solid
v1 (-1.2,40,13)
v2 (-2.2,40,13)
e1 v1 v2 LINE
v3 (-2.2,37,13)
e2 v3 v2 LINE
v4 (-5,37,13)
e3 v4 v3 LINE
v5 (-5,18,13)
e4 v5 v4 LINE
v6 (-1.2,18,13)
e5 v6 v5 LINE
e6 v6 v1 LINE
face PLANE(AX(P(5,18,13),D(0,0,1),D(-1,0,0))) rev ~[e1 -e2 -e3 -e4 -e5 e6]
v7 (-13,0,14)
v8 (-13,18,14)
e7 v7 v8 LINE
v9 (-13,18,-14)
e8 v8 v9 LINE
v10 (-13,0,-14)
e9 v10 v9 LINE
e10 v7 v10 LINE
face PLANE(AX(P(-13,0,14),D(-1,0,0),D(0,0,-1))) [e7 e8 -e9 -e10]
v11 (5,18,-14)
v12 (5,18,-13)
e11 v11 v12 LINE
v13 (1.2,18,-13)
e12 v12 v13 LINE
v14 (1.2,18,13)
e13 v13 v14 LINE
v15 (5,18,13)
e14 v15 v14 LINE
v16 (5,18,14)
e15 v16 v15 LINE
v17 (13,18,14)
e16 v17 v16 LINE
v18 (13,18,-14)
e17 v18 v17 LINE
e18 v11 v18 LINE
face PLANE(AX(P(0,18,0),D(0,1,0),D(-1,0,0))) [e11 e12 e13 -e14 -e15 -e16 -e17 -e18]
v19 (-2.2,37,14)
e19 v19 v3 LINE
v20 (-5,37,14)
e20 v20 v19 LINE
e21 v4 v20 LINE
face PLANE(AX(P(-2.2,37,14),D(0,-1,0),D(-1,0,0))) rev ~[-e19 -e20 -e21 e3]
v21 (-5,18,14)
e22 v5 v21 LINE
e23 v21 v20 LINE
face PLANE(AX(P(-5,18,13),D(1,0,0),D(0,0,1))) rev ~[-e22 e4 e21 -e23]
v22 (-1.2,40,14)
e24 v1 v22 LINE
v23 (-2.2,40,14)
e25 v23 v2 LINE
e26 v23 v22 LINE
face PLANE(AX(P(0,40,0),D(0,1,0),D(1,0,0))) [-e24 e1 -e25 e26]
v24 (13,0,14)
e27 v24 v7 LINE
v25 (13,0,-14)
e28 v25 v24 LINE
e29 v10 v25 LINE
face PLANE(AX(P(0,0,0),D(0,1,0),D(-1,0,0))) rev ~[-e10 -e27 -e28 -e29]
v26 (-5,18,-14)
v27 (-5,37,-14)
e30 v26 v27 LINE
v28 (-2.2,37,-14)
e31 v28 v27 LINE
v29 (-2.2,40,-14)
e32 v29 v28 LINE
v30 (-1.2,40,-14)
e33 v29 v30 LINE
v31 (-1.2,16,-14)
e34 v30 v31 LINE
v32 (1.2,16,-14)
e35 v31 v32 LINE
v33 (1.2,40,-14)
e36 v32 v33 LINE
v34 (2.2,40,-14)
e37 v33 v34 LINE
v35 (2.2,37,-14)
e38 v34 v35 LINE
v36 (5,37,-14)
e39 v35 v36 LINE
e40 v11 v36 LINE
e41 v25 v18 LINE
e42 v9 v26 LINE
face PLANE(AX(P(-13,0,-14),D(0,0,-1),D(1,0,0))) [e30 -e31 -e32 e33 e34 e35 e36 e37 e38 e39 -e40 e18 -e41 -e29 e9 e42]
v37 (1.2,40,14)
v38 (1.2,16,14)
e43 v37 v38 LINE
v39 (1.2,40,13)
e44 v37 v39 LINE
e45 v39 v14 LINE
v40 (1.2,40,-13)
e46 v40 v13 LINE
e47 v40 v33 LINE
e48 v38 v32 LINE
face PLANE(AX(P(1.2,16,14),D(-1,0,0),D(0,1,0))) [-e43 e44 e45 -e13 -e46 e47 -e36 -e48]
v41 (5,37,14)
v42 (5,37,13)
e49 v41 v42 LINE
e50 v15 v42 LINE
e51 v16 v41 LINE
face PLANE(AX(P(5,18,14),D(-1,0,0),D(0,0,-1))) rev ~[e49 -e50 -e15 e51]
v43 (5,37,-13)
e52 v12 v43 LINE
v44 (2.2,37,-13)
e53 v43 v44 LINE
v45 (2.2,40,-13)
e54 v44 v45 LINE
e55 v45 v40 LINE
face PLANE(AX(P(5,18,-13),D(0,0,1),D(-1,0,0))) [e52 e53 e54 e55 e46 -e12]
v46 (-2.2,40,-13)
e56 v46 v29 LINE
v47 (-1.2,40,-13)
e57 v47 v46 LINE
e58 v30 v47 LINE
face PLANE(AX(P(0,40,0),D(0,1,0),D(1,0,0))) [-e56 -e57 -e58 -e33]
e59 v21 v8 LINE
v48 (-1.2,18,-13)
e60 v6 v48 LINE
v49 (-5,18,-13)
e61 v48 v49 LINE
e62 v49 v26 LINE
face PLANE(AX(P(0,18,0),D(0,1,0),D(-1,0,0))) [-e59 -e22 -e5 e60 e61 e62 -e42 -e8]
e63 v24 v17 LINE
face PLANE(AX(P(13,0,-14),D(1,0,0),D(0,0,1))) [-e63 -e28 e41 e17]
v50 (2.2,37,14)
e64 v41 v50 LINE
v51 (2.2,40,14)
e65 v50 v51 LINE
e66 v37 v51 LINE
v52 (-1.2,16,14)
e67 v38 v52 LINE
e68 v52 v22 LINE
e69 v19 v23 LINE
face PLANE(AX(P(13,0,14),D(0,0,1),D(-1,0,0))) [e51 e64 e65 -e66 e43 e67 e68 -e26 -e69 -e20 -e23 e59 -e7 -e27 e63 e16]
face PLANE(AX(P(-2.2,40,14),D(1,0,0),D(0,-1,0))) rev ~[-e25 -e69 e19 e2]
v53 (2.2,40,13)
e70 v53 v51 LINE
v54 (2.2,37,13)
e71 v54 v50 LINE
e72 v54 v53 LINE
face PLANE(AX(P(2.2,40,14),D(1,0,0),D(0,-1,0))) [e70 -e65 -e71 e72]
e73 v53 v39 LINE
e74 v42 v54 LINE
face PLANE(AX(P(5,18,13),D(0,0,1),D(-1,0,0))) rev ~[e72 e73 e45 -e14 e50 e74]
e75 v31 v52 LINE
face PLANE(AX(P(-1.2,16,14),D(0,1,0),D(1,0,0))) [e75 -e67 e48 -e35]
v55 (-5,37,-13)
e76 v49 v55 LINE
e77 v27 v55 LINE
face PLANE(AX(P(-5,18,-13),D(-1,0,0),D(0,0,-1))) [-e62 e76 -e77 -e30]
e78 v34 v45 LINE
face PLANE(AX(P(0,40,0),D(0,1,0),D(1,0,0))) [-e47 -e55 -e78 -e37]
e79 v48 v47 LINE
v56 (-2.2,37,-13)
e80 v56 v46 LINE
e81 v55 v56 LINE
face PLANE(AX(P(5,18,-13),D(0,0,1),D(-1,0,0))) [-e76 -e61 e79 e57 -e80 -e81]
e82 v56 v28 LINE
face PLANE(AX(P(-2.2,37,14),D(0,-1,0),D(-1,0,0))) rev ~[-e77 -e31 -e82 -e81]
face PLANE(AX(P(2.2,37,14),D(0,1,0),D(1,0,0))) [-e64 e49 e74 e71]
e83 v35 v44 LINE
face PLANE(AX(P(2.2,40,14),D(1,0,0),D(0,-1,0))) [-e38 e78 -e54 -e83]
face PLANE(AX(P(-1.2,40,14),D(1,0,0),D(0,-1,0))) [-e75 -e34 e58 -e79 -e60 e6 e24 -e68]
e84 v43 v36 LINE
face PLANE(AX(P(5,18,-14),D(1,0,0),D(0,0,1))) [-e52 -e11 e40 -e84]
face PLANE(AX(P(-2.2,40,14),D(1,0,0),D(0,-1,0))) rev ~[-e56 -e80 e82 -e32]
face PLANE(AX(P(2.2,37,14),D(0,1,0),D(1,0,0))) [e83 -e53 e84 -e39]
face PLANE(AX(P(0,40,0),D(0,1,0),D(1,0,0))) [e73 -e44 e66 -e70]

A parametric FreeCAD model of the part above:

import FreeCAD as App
import Part
import Sketcher
from FreeCAD import Vector

doc = App.newDocument("Part")
body = doc.addObject("PartDesign::Body", "Body")

# Sketch on XZ plane
sketch1 = body.newObject("Sketcher::SketchObject", "Sketch")
sketch1.AttachmentSupport = (doc.getObject("XZ_Plane"), [""])
sketch1.MapMode = "FlatFace"
sketch1.addGeometry(Part.LineSegment(Vector(-13, 14, 0), Vector(13, 14, 0)), False)
sketch1.addGeometry(Part.LineSegment(Vector(13, 14, 0), Vector(13, -14, 0)), False)
sketch1.addGeometry(Part.LineSegment(Vector(13, -14, 0), Vector(-13, -14, 0)), False)
sketch1.addGeometry(Part.LineSegment(Vector(-13, -14, 0), Vector(-13, 14, 0)), False)
sketch1.addConstraint(Sketcher.Constraint("Coincident", 0, 2, 1, 1))
sketch1.addConstraint(Sketcher.Constraint("Coincident", 1, 2, 2, 1))
sketch1.addConstraint(Sketcher.Constraint("Coincident", 2, 2, 3, 1))
sketch1.addConstraint(Sketcher.Constraint("Coincident", 3, 2, 0, 1))
sketch1.addConstraint(Sketcher.Constraint("Horizontal", 0))
sketch1.addConstraint(Sketcher.Constraint("Vertical", 1))
sketch1.addConstraint(Sketcher.Constraint("Horizontal", 2))
sketch1.addConstraint(Sketcher.Constraint("Vertical", 3))
sketch1.addConstraint(Sketcher.Constraint("Symmetric", 0, 2, 2, 2, -1, 1))
sketch1.addConstraint(Sketcher.Constraint("DistanceX", 0, 1, 0, 2, 26.0))
sketch1.addConstraint(Sketcher.Constraint("DistanceY", 1, 2, 1, 1, 28.0))
pad1 = body.newObject("PartDesign::Pad", "Pad")
pad1.Profile = sketch1
pad1.Length = 18
pad1.Reversed = True

# Sketch on XZ plane
sketch2 = body.newObject("Sketcher::SketchObject", "Sketch001")
sketch2.AttachmentSupport = (doc.getObject("XZ_Plane"), [""])
sketch2.MapMode = "FlatFace"
sketch2.AttachmentOffset = App.Placement(Vector(0, 0, -18), App.Rotation())
sketch2.addGeometry(Part.LineSegment(Vector(5, -13, 0), Vector(5, -14, 0)), False)
sketch2.addGeometry(Part.LineSegment(Vector(5, -14, 0), Vector(-5, -14, 0)), False)
sketch2.addGeometry(Part.LineSegment(Vector(-5, -14, 0), Vector(-5, -13, 0)), False)
sketch2.addGeometry(Part.LineSegment(Vector(-5, -13, 0), Vector(5, -13, 0)), False)
sketch2.addGeometry(Part.LineSegment(Vector(-5, 13, 0), Vector(-5, 14, 0)), False)
sketch2.addGeometry(Part.LineSegment(Vector(-5, 14, 0), Vector(5, 14, 0)), False)
sketch2.addGeometry(Part.LineSegment(Vector(5, 14, 0), Vector(5, 13, 0)), False)
sketch2.addGeometry(Part.LineSegment(Vector(5, 13, 0), Vector(-5, 13, 0)), False)
sketch2.addConstraint(Sketcher.Constraint("Coincident", 0, 2, 1, 1))
sketch2.addConstraint(Sketcher.Constraint("Coincident", 1, 2, 2, 1))
sketch2.addConstraint(Sketcher.Constraint("Coincident", 2, 2, 3, 1))
sketch2.addConstraint(Sketcher.Constraint("Coincident", 3, 2, 0, 1))
sketch2.addConstraint(Sketcher.Constraint("Coincident", 4, 2, 5, 1))
sketch2.addConstraint(Sketcher.Constraint("Coincident", 5, 2, 6, 1))
sketch2.addConstraint(Sketcher.Constraint("Coincident", 6, 2, 7, 1))
sketch2.addConstraint(Sketcher.Constraint("Coincident", 7, 2, 4, 1))
sketch2.addConstraint(Sketcher.Constraint("Vertical", 0))
sketch2.addConstraint(Sketcher.Constraint("Horizontal", 1))
sketch2.addConstraint(Sketcher.Constraint("Vertical", 2))
sketch2.addConstraint(Sketcher.Constraint("Horizontal", 3))
sketch2.addConstraint(Sketcher.Constraint("Vertical", 4))
sketch2.addConstraint(Sketcher.Constraint("Horizontal", 5))
sketch2.addConstraint(Sketcher.Constraint("Vertical", 6))
sketch2.addConstraint(Sketcher.Constraint("Horizontal", 7))
sketch2.addConstraint(Sketcher.Constraint("Symmetric", 0, 2, 4, 2, -1, 1))
sketch2.addConstraint(Sketcher.Constraint("Symmetric", 2, 2, 6, 2, -1, 1))
sketch2.addConstraint(Sketcher.Constraint("Vertical", 2, 2, 4, 2))
sketch2.addConstraint(Sketcher.Constraint("DistanceX", 1, 2, 1, 1, 10.0))
sketch2.addConstraint(Sketcher.Constraint("DistanceY", 0, 2, 0, 1, 1.0))
sketch2.addConstraint(Sketcher.Constraint("DistanceY", 0, 2, -1, 1, 14.0))
pad2 = body.newObject("PartDesign::Pad", "Pad001")
pad2.Profile = sketch2
pad2.Length = 22
pad2.Reversed = True

# Sketch on XY plane
sketch3 = body.newObject("Sketcher::SketchObject", "Sketch002")
sketch3.AttachmentSupport = (doc.getObject("XY_Plane"), [""])
sketch3.MapMode = "FlatFace"
sketch3.AttachmentOffset = App.Placement(Vector(0, 0, 14), App.Rotation())
sketch3.addGeometry(Part.LineSegment(Vector(5, 40, 0), Vector(2.2, 40, 0)), False)
sketch3.addGeometry(Part.LineSegment(Vector(2.2, 40, 0), Vector(2.2, 37, 0)), False)
sketch3.addGeometry(Part.LineSegment(Vector(2.2, 37, 0), Vector(5, 37, 0)), False)
sketch3.addGeometry(Part.LineSegment(Vector(5, 37, 0), Vector(5, 40, 0)), False)
sketch3.addGeometry(Part.LineSegment(Vector(-2.2, 40, 0), Vector(-5, 40, 0)), False)
sketch3.addGeometry(Part.LineSegment(Vector(-5, 40, 0), Vector(-5, 37, 0)), False)
sketch3.addGeometry(Part.LineSegment(Vector(-5, 37, 0), Vector(-2.2, 37, 0)), False)
sketch3.addGeometry(Part.LineSegment(Vector(-2.2, 37, 0), Vector(-2.2, 40, 0)), False)
sketch3.addConstraint(Sketcher.Constraint("Coincident", 0, 2, 1, 1))
sketch3.addConstraint(Sketcher.Constraint("Coincident", 1, 2, 2, 1))
sketch3.addConstraint(Sketcher.Constraint("Coincident", 2, 2, 3, 1))
sketch3.addConstraint(Sketcher.Constraint("Coincident", 3, 2, 0, 1))
sketch3.addConstraint(Sketcher.Constraint("Coincident", 4, 2, 5, 1))
sketch3.addConstraint(Sketcher.Constraint("Coincident", 5, 2, 6, 1))
sketch3.addConstraint(Sketcher.Constraint("Coincident", 6, 2, 7, 1))
sketch3.addConstraint(Sketcher.Constraint("Coincident", 7, 2, 4, 1))
sketch3.addConstraint(Sketcher.Constraint("Horizontal", 0))
sketch3.addConstraint(Sketcher.Constraint("Vertical", 1))
sketch3.addConstraint(Sketcher.Constraint("Horizontal", 2))
sketch3.addConstraint(Sketcher.Constraint("Vertical", 3))
sketch3.addConstraint(Sketcher.Constraint("Horizontal", 4))
sketch3.addConstraint(Sketcher.Constraint("Vertical", 5))
sketch3.addConstraint(Sketcher.Constraint("Horizontal", 6))
sketch3.addConstraint(Sketcher.Constraint("Vertical", 7))
sketch3.addConstraint(Sketcher.Constraint("Symmetric", 3, 2, 4, 2, -2))
sketch3.addConstraint(Sketcher.Constraint("Symmetric", 1, 2, 6, 2, -2))
sketch3.addConstraint(Sketcher.Constraint("DistanceY", 1, 2, 1, 1, 3.0))
sketch3.addConstraint(Sketcher.Constraint("DistanceX", 0, 2, 0, 1, 2.8))
sketch3.addConstraint(Sketcher.Constraint("DistanceY", -1, 1, 0, 2, 40.0))
sketch3.addConstraint(Sketcher.Constraint("DistanceX", -1, 1, 2, 2, 5.0))
pocket1 = body.newObject("PartDesign::Pocket", "Pocket")
pocket1.Profile = sketch3
pocket1.Length = 100
pocket1.Midplane = True

# Sketch on XY plane
sketch4 = body.newObject("Sketcher::SketchObject", "Sketch003")
sketch4.AttachmentSupport = (doc.getObject("XY_Plane"), [""])
sketch4.MapMode = "FlatFace"
sketch4.AttachmentOffset = App.Placement(Vector(0, 0, 14), App.Rotation())
sketch4.addGeometry(Part.LineSegment(Vector(1.2, 40, 0), Vector(-1.2, 40, 0)), False)
sketch4.addGeometry(Part.LineSegment(Vector(-1.2, 40, 0), Vector(-1.2, 16, 0)), False)
sketch4.addGeometry(Part.LineSegment(Vector(-1.2, 16, 0), Vector(1.2, 16, 0)), False)
sketch4.addGeometry(Part.LineSegment(Vector(1.2, 16, 0), Vector(1.2, 40, 0)), False)
sketch4.addConstraint(Sketcher.Constraint("Coincident", 0, 2, 1, 1))
sketch4.addConstraint(Sketcher.Constraint("Coincident", 1, 2, 2, 1))
sketch4.addConstraint(Sketcher.Constraint("Coincident", 2, 2, 3, 1))
sketch4.addConstraint(Sketcher.Constraint("Coincident", 3, 2, 0, 1))
sketch4.addConstraint(Sketcher.Constraint("Horizontal", 0))
sketch4.addConstraint(Sketcher.Constraint("Vertical", 1))
sketch4.addConstraint(Sketcher.Constraint("Horizontal", 2))
sketch4.addConstraint(Sketcher.Constraint("Vertical", 3))
sketch4.addConstraint(Sketcher.Constraint("DistanceY", 1, 2, 1, 1, 24.0))
sketch4.addConstraint(Sketcher.Constraint("DistanceX", 0, 2, 0, 1, 2.4))
sketch4.addConstraint(Sketcher.Constraint("DistanceY", -1, 1, 0, 2, 40.0))
sketch4.addConstraint(Sketcher.Constraint("DistanceX", 0, 2, -1, 1, 1.2))
pocket2 = body.newObject("PartDesign::Pocket", "Pocket001")
pocket2.Profile = sketch4
pocket2.Length = 100
pocket2.Midplane = True

doc.recompute()
